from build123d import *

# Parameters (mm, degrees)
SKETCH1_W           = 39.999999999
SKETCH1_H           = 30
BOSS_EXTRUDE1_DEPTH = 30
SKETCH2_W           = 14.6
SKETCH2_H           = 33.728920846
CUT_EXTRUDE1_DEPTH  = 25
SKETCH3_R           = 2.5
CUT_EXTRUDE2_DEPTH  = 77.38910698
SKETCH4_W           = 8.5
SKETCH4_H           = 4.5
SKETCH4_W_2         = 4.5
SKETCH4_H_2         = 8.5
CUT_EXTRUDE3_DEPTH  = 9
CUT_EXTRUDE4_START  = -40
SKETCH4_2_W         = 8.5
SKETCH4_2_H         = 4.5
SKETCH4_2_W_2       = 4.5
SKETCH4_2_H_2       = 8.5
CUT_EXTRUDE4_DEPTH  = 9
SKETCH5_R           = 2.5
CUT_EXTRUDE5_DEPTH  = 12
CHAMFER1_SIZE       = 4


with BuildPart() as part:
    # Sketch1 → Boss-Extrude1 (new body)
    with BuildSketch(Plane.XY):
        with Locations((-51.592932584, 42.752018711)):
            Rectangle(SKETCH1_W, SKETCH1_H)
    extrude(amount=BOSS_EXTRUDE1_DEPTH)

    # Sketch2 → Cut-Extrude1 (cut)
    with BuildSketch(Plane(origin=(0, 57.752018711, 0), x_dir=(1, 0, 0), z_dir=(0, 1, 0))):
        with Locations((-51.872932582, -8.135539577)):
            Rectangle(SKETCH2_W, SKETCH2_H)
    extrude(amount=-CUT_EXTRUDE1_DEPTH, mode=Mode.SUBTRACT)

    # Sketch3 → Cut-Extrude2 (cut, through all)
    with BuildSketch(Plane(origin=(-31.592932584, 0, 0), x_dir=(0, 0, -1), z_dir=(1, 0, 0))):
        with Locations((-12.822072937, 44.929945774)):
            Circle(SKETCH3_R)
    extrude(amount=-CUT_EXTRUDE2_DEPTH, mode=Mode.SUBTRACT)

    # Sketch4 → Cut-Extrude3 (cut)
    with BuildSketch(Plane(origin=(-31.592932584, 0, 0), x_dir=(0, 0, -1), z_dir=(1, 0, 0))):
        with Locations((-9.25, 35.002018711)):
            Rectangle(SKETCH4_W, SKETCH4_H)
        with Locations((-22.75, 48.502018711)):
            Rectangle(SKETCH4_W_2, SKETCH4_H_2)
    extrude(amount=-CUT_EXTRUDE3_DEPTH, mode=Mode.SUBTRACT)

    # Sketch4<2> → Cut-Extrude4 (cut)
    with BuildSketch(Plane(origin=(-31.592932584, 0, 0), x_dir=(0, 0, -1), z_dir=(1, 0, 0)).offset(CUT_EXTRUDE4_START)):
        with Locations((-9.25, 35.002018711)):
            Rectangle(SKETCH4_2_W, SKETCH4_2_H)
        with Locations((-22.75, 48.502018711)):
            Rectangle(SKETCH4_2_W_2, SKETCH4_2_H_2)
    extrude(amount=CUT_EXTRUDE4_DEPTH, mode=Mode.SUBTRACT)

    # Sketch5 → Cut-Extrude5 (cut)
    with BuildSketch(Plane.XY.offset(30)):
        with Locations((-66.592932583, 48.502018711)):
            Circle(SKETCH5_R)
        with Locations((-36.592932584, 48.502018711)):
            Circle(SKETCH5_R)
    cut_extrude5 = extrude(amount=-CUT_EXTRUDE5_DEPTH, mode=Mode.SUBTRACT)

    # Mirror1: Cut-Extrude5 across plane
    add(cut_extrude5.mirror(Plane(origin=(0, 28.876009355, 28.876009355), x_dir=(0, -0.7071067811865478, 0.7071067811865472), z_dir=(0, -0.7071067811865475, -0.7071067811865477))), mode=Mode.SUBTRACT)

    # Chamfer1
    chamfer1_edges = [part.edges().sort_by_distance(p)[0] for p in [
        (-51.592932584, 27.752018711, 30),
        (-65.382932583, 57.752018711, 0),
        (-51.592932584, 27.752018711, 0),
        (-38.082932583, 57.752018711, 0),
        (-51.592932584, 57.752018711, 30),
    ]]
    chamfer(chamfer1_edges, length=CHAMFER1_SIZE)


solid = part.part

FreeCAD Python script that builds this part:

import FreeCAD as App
import Part
import Sketcher

V = App.Vector
Q = App.Units.Quantity


def edges_at(feature, points):
    """Names of the edges that pass closest to the given points."""
    edges = feature.Shape.Edges
    near = lambda p: min(range(len(edges)), key=lambda i: edges[i].distToShape(Part.Vertex(*p))[0])
    return sorted({f"Edge{near(p) + 1}" for p in points})

doc = App.newDocument("Part")
body = doc.addObject("PartDesign::Body", "Body")

sketch1 = doc.addObject("Sketcher::SketchObject", "Sketch")
body.addObject(sketch1)
sketch1.AttachmentSupport = (doc.XY_Plane, [""])
sketch1.MapMode = "FlatFace"
sketch1.addGeometry([
    Part.LineSegment(V(-72, 58, 0), V(-72, 28, 0)),
    Part.LineSegment(V(-72, 28, 0), V(-32, 28, 0)),
    Part.LineSegment(V(-32, 28, 0), V(-32, 58, 0)),
    Part.LineSegment(V(-32, 58, 0), V(-72, 58, 0)),
], False)
sketch1.addConstraint([
    Sketcher.Constraint("Coincident", 0, 2, 1, 1),
    Sketcher.Constraint("Coincident", 1, 2, 2, 1),
    Sketcher.Constraint("Coincident", 2, 2, 3, 1),
    Sketcher.Constraint("Coincident", 3, 2, 0, 1),
    Sketcher.Constraint("Vertical", 0),
    Sketcher.Constraint("Horizontal", 1),
    Sketcher.Constraint("Vertical", 2),
    Sketcher.Constraint("Horizontal", 3),
    Sketcher.Constraint("DistanceX", 1, 1, 1, 2, Q("40 mm")),
    Sketcher.Constraint("DistanceY", 0, 2, 0, 1, Q("30 mm")),
    Sketcher.Constraint("DistanceY", -1, 1, 0, 2, Q("27.752019 mm")),
    Sketcher.Constraint("DistanceX", 0, 2, -1, 1, Q("71.592933 mm")),
])
pad1 = doc.addObject("PartDesign::Pad", "Pad")
body.addObject(pad1)
pad1.Profile = sketch1
pad1.Length = 30

sketch2 = doc.addObject("Sketcher::SketchObject", "Sketch001")
body.addObject(sketch2)
sketch2.AttachmentSupport = (doc.XZ_Plane, [""])
sketch2.MapMode = "FlatFace"
sketch2.AttachmentOffset = App.Placement(V(0, 0, -57.752019), App.Rotation())
sketch2.addGeometry([
    Part.LineSegment(V(-59, -9, 0), V(-59, 25, 0)),
    Part.LineSegment(V(-59, 25, 0), V(-45, 25, 0)),
    Part.LineSegment(V(-45, 25, 0), V(-45, -9, 0)),
    Part.LineSegment(V(-45, -9, 0), V(-59, -9, 0)),
], False)
sketch2.addConstraint([
    Sketcher.Constraint("Coincident", 0, 2, 1, 1),
    Sketcher.Constraint("Coincident", 1, 2, 2, 1),
    Sketcher.Constraint("Coincident", 2, 2, 3, 1),
    Sketcher.Constraint("Coincident", 3, 2, 0, 1),
    Sketcher.Constraint("Vertical", 0),
    Sketcher.Constraint("Horizontal", 1),
    Sketcher.Constraint("Vertical", 2),
    Sketcher.Constraint("Horizontal", 3),
    Sketcher.Constraint("DistanceX", 1, 1, 1, 2, Q("14.6 mm")),
    Sketcher.Constraint("DistanceY", -1, 1, 0, 2, Q("25 mm")),
    Sketcher.Constraint("DistanceY", 0, 1, 0, 2, Q("33.728921 mm")),
    Sketcher.Constraint("DistanceX", 0, 2, -1, 1, Q("59.172933 mm")),
])
pocket1 = doc.addObject("PartDesign::Pocket", "Pocket")
body.addObject(pocket1)
pocket1.Profile = sketch2
pocket1.Length = 25
pocket1.Reversed = True

sketch3 = doc.addObject("Sketcher::SketchObject", "Sketch002")
body.addObject(sketch3)
sketch3.AttachmentSupport = (doc.YZ_Plane, [""])
sketch3.MapMode = "FlatFace"
sketch3.AttachmentOffset = App.Placement(V(0, 0, -31.592933), App.Rotation())
sketch3.addGeometry(Part.Circle(V(44.9, 12.8, 0), V(0, 0, 1), 2.5), False)
sketch3.addConstraint([
    Sketcher.Constraint("Diameter", 0, Q("5 mm")),
    Sketcher.Constraint("DistanceX", -1, 1, 0, 3, Q("44.929946 mm")),
    Sketcher.Constraint("DistanceY", -1, 1, 0, 3, Q("12.822073 mm")),
])
pocket2 = doc.addObject("PartDesign::Pocket", "Pocket001")
body.addObject(pocket2)
pocket2.Profile = sketch3
pocket2.Type = "ThroughAll"

sketch4 = doc.addObject("Sketcher::SketchObject", "Sketch003")
body.addObject(sketch4)
sketch4.AttachmentSupport = (doc.YZ_Plane, [""])
sketch4.MapMode = "FlatFace"
sketch4.AttachmentOffset = App.Placement(V(0, 0, -31.592933), App.Rotation())
sketch4.addGeometry([
    Part.LineSegment(V(37.3, 13.5, 0), V(32.8, 13.5, 0)),
    Part.LineSegment(V(32.8, 13.5, 0), V(32.8, 5, 0)),
    Part.LineSegment(V(32.8, 5, 0), V(37.3, 5, 0)),
    Part.LineSegment(V(37.3, 5, 0), V(37.3, 13.5, 0)),
    Part.LineSegment(V(52.8, 25, 0), V(44.3, 25, 0)),
    Part.LineSegment(V(44.3, 25, 0), V(44.3, 20.5, 0)),
    Part.LineSegment(V(44.3, 20.5, 0), V(52.8, 20.5, 0)),
    Part.LineSegment(V(52.8, 20.5, 0), V(52.8, 25, 0)),
], False)
sketch4.addConstraint([
    Sketcher.Constraint("Coincident", 0, 2, 1, 1),
    Sketcher.Constraint("Coincident", 1, 2, 2, 1),
    Sketcher.Constraint("Coincident", 2, 2, 3, 1),
    Sketcher.Constraint("Coincident", 3, 2, 0, 1),
    Sketcher.Constraint("Coincident", 4, 2, 5, 1),
    Sketcher.Constraint("Coincident", 5, 2, 6, 1),
    Sketcher.Constraint("Coincident", 6, 2, 7, 1),
    Sketcher.Constraint("Coincident", 7, 2, 4, 1),
    Sketcher.Constraint("Horizontal", 0),
    Sketcher.Constraint("Vertical", 1),
    Sketcher.Constraint("Horizontal", 2),
    Sketcher.Constraint("Vertical", 3),
    Sketcher.Constraint("Horizontal", 4),
    Sketcher.Constraint("Vertical", 5),
    Sketcher.Constraint("Horizontal", 6),
    Sketcher.Constraint("Vertical", 7),
    Sketcher.Constraint("Equal", 6, 1),
    Sketcher.Constraint("Equal", 2, 5),
    Sketcher.Constraint("DistanceX", 0, 2, 0, 1, Q("4.5 mm")),
    Sketcher.Constraint("DistanceX", 4, 2, 4, 1, Q("8.5 mm")),
    Sketcher.Constraint("DistanceY", -1, 1, 1, 2, Q("5 mm")),
    Sketcher.Constraint("DistanceY", -1, 1, 4, 2, Q("25 mm")),
    Sketcher.Constraint("DistanceX", 3, 2, 4, 2, Q("7 mm")),
    Sketcher.Constraint("DistanceX", -1, 1, 0, 2, Q("32.752019 mm")),
])
pocket3 = doc.addObject("PartDesign::Pocket", "Pocket002")
body.addObject(pocket3)
pocket3.Profile = sketch4
pocket3.Length = 9

sketch5 = doc.addObject("Sketcher::SketchObject", "Sketch004")
body.addObject(sketch5)
sketch5.AttachmentSupport = (doc.YZ_Plane, [""])
sketch5.MapMode = "FlatFace"
sketch5.AttachmentOffset = App.Placement(V(0, 0, -71.592933), App.Rotation())
sketch5.addGeometry([
    Part.LineSegment(V(37.3, 13.5, 0), V(32.8, 13.5, 0)),
    Part.LineSegment(V(32.8, 13.5, 0), V(32.8, 5, 0)),
    Part.LineSegment(V(32.8, 5, 0), V(37.3, 5, 0)),
    Part.LineSegment(V(37.3, 5, 0), V(37.3, 13.5, 0)),
    Part.LineSegment(V(52.8, 25, 0), V(44.3, 25, 0)),
    Part.LineSegment(V(44.3, 25, 0), V(44.3, 20.5, 0)),
    Part.LineSegment(V(44.3, 20.5, 0), V(52.8, 20.5, 0)),
    Part.LineSegment(V(52.8, 20.5, 0), V(52.8, 25, 0)),
], False)
sketch5.addConstraint([
    Sketcher.Constraint("Coincident", 0, 2, 1, 1),
    Sketcher.Constraint("Coincident", 1, 2, 2, 1),
    Sketcher.Constraint("Coincident", 2, 2, 3, 1),
    Sketcher.Constraint("Coincident", 3, 2, 0, 1),
    Sketcher.Constraint("Coincident", 4, 2, 5, 1),
    Sketcher.Constraint("Coincident", 5, 2, 6, 1),
    Sketcher.Constraint("Coincident", 6, 2, 7, 1),
    Sketcher.Constraint("Coincident", 7, 2, 4, 1),
    Sketcher.Constraint("Horizontal", 0),
    Sketcher.Constraint("Vertical", 1),
    Sketcher.Constraint("Horizontal", 2),
    Sketcher.Constraint("Vertical", 3),
    Sketcher.Constraint("Horizontal", 4),
    Sketcher.Constraint("Vertical", 5),
    Sketcher.Constraint("Horizontal", 6),
    Sketcher.Constraint("Vertical", 7),
    Sketcher.Constraint("Equal", 6, 1),
    Sketcher.Constraint("Equal", 2, 5),
    Sketcher.Constraint("DistanceX", 0, 2, 0, 1, Q("4.5 mm")),
    Sketcher.Constraint("DistanceX", 4, 2, 4, 1, Q("8.5 mm")),
    Sketcher.Constraint("DistanceY", -1, 1, 1, 2, Q("5 mm")),
    Sketcher.Constraint("DistanceY", -1, 1, 4, 2, Q("25 mm")),
    Sketcher.Constraint("DistanceX", 3, 2, 4, 2, Q("7 mm")),
    Sketcher.Constraint("DistanceX", -1, 1, 0, 2, Q("32.752019 mm")),
])
pocket4 = doc.addObject("PartDesign::Pocket", "Pocket003")
body.addObject(pocket4)
pocket4.Profile = sketch5
pocket4.Length = 9
pocket4.Reversed = True

sketch6 = doc.addObject("Sketcher::SketchObject", "Sketch005")
body.addObject(sketch6)
sketch6.AttachmentSupport = (doc.XY_Plane, [""])
sketch6.MapMode = "FlatFace"
sketch6.AttachmentOffset = App.Placement(V(0, 0, 30), App.Rotation())
sketch6.addGeometry([
    Part.Circle(V(-66.6, 48.5, 0), V(0, 0, 1), 2.5),
    Part.Circle(V(-36.6, 48.5, 0), V(0, 0, 1), 2.5),
], False)
sketch6.addConstraint([
    Sketcher.Constraint("Equal", 0, 1),
    Sketcher.Constraint("Horizontal", 0, 3, 1, 3),
    Sketcher.Constraint("Diameter", 0, Q("5 mm")),
    Sketcher.Constraint("DistanceX", 0, 3, 1, 3, Q("30 mm")),
    Sketcher.Constraint("DistanceY", -1, 1, 0, 3, Q("48.502019 mm")),
    Sketcher.Constraint("DistanceX", 0, 3, -1, 1, Q("66.592933 mm")),
])
pocket5 = doc.addObject("PartDesign::Pocket", "Pocket004")
body.addObject(pocket5)
pocket5.Profile = sketch6
pocket5.Length = 12
doc.recompute()

datumplane = doc.addObject("PartDesign::Plane", "DatumPlane")
body.addObject(datumplane)
datumplane.Placement = App.Placement(V(0, 28.876009, 28.876009), App.Rotation(V(0, -0.707106781, 0.707106781), V(-1, 0, 0), V(0, -0.707106781, -0.707106781), "ZXY"))
mirrored = doc.addObject("PartDesign::Mirrored", "Mirrored")
body.addObject(mirrored)
mirrored.Originals = [pocket5]
mirrored.MirrorPlane = (datumplane, [""])
body.Tip = mirrored
doc.recompute()

chamfer = doc.addObject("PartDesign::Chamfer", "Chamfer")
body.addObject(chamfer)
chamfer.Base = (mirrored, edges_at(mirrored, [
    (-51.593, 27.752, 30),
    (-65.383, 57.752, 0),
    (-51.593, 27.752, 0),
    (-38.083, 57.752, 0),
    (-51.593, 57.752, 30),
]))
chamfer.Size = 4

doc.recompute()
